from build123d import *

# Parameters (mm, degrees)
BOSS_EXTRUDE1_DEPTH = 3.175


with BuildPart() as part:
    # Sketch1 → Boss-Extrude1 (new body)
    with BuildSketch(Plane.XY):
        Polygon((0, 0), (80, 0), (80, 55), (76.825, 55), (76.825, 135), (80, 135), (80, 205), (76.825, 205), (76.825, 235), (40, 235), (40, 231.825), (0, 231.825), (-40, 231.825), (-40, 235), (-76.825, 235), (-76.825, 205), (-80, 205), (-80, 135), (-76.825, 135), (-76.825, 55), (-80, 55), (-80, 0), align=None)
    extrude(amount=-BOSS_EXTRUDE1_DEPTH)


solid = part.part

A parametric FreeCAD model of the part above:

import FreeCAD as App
import Part
import Sketcher

V = App.Vector

doc = App.newDocument("Part")
body = doc.addObject("PartDesign::Body", "Body")

# Sketch on XY plane
sketch1 = body.newObject("Sketcher::SketchObject", "Sketch")
sketch1.AttachmentSupport = (doc.getObject("XY_Plane"), [""])
sketch1.MapMode = "FlatFace"
sketch1.addGeometry(Part.LineSegment(V(80, 0, 0), V(80, 55, 0)), False)
sketch1.addGeometry(Part.LineSegment(V(80, 55, 0), V(76.825, 55, 0)), False)
sketch1.addGeometry(Part.LineSegment(V(76.825, 55, 0), V(76.825, 135, 0)), False)
sketch1.addGeometry(Part.LineSegment(V(76.825, 135, 0), V(80, 135, 0)), False)
sketch1.addGeometry(Part.LineSegment(V(80, 135, 0), V(80, 205, 0)), False)
sketch1.addGeometry(Part.LineSegment(V(80, 205, 0), V(76.825, 205, 0)), False)
sketch1.addGeometry(Part.LineSegment(V(76.825, 205, 0), V(76.825, 235, 0)), False)
sketch1.addGeometry(Part.LineSegment(V(76.825, 235, 0), V(40, 235, 0)), False)
sketch1.addGeometry(Part.LineSegment(V(40, 235, 0), V(40, 231.825, 0)), False)
sketch1.addGeometry(Part.LineSegment(V(40, 231.825, 0), V(-40, 231.825, 0)), False)
sketch1.addGeometry(Part.LineSegment(V(-40, 231.825, 0), V(-40, 235, 0)), False)
sketch1.addGeometry(Part.LineSegment(V(-40, 235, 0), V(-76.825, 235, 0)), False)
sketch1.addGeometry(Part.LineSegment(V(-76.825, 235, 0), V(-76.825, 205, 0)), False)
sketch1.addGeometry(Part.LineSegment(V(-76.825, 205, 0), V(-80, 205, 0)), False)
sketch1.addGeometry(Part.LineSegment(V(-80, 205, 0), V(-80, 135, 0)), False)
sketch1.addGeometry(Part.LineSegment(V(-80, 135, 0), V(-76.825, 135, 0)), False)
sketch1.addGeometry(Part.LineSegment(V(-76.825, 135, 0), V(-76.825, 55, 0)), False)
sketch1.addGeometry(Part.LineSegment(V(-76.825, 55, 0), V(-80, 55, 0)), False)
sketch1.addGeometry(Part.LineSegment(V(-80, 55, 0), V(-80, 0, 0)), False)
sketch1.addGeometry(Part.LineSegment(V(-80, 0, 0), V(80, 0, 0)), False)
sketch1.addConstraint(Sketcher.Constraint("Coincident", 0, 2, 1, 1))
sketch1.addConstraint(Sketcher.Constraint("Coincident", 1, 2, 2, 1))
sketch1.addConstraint(Sketcher.Constraint("Coincident", 2, 2, 3, 1))
sketch1.addConstraint(Sketcher.Constraint("Coincident", 3, 2, 4, 1))
sketch1.addConstraint(Sketcher.Constraint("Coincident", 4, 2, 5, 1))
sketch1.addConstraint(Sketcher.Constraint("Coincident", 5, 2, 6, 1))
sketch1.addConstraint(Sketcher.Constraint("Coincident", 6, 2, 7, 1))
sketch1.addConstraint(Sketcher.Constraint("Coincident", 7, 2, 8, 1))
sketch1.addConstraint(Sketcher.Constraint("Coincident", 8, 2, 9, 1))
sketch1.addConstraint(Sketcher.Constraint("Coincident", 9, 2, 10, 1))
sketch1.addConstraint(Sketcher.Constraint("Coincident", 10, 2, 11, 1))
sketch1.addConstraint(Sketcher.Constraint("Coincident", 11, 2, 12, 1))
sketch1.addConstraint(Sketcher.Constraint("Coincident", 12, 2, 13, 1))
sketch1.addConstraint(Sketcher.Constraint("Coincident", 13, 2, 14, 1))
sketch1.addConstraint(Sketcher.Constraint("Coincident", 14, 2, 15, 1))
sketch1.addConstraint(Sketcher.Constraint("Coincident", 15, 2, 16, 1))
sketch1.addConstraint(Sketcher.Constraint("Coincident", 16, 2, 17, 1))
sketch1.addConstraint(Sketcher.Constraint("Coincident", 17, 2, 18, 1))
sketch1.addConstraint(Sketcher.Constraint("Coincident", 18, 2, 19, 1))
sketch1.addConstraint(Sketcher.Constraint("Coincident", 19, 2, 0, 1))
sketch1.addConstraint(Sketcher.Constraint("Vertical", 0))
sketch1.addConstraint(Sketcher.Constraint("Horizontal", 1))
sketch1.addConstraint(Sketcher.Constraint("Vertical", 2))
sketch1.addConstraint(Sketcher.Constraint("Horizontal", 3))
sketch1.addConstraint(Sketcher.Constraint("Vertical", 4))
sketch1.addConstraint(Sketcher.Constraint("Horizontal", 5))
sketch1.addConstraint(Sketcher.Constraint("Vertical", 6))
sketch1.addConstraint(Sketcher.Constraint("Horizontal", 7))
sketch1.addConstraint(Sketcher.Constraint("Vertical", 8))
sketch1.addConstraint(Sketcher.Constraint("Horizontal", 9))
sketch1.addConstraint(Sketcher.Constraint("Vertical", 10))
sketch1.addConstraint(Sketcher.Constraint("Horizontal", 11))
sketch1.addConstraint(Sketcher.Constraint("Vertical", 12))
sketch1.addConstraint(Sketcher.Constraint("Horizontal", 13))
sketch1.addConstraint(Sketcher.Constraint("Vertical", 14))
sketch1.addConstraint(Sketcher.Constraint("Horizontal", 15))
sketch1.addConstraint(Sketcher.Constraint("Vertical", 16))
sketch1.addConstraint(Sketcher.Constraint("Horizontal", 17))
sketch1.addConstraint(Sketcher.Constraint("Vertical", 18))
sketch1.addConstraint(Sketcher.Constraint("Horizontal", 19))
sketch1.addConstraint(Sketcher.Constraint("Symmetric", 18, 2, 19, 2, -1, 1))
sketch1.addConstraint(Sketcher.Constraint("Symmetric", 7, 2, 10, 2, -2))
sketch1.addConstraint(Sketcher.Constraint("Symmetric", 5, 2, 12, 2, -2))
sketch1.addConstraint(Sketcher.Constraint("Symmetric", 3, 2, 14, 2, -2))
sketch1.addConstraint(Sketcher.Constraint("Symmetric", 1, 2, 16, 2, -2))
sketch1.addConstraint(Sketcher.Constraint("Vertical", 0, 2, 3, 2))
sketch1.addConstraint(Sketcher.Constraint("Vertical", 2, 2, 5, 2))
sketch1.addConstraint(Sketcher.Constraint("Equal", 9, 2))
sketch1.addConstraint(Sketcher.Constraint("Equal", 17, 8))
sketch1.addConstraint(Sketcher.Constraint("DistanceX", 9, 2, 9, 1, 80.0))
sketch1.addConstraint(Sketcher.Constraint("DistanceX", 19, 1, 19, 2, 160.0))
sketch1.addConstraint(Sketcher.Constraint("DistanceY", 0, 1, 0, 2, 55.0))
sketch1.addConstraint(Sketcher.Constraint("DistanceY", 4, 1, 4, 2, 70.0))
sketch1.addConstraint(Sketcher.Constraint("DistanceY", 6, 1, 6, 2, 30.0))
sketch1.addConstraint(Sketcher.Constraint("DistanceX", 1, 2, 1, 1, 3.175))
pad1 = body.newObject("PartDesign::Pad", "Pad")
pad1.Profile = sketch1
pad1.Length = 3.175
pad1.Reversed = True

doc.recompute()
